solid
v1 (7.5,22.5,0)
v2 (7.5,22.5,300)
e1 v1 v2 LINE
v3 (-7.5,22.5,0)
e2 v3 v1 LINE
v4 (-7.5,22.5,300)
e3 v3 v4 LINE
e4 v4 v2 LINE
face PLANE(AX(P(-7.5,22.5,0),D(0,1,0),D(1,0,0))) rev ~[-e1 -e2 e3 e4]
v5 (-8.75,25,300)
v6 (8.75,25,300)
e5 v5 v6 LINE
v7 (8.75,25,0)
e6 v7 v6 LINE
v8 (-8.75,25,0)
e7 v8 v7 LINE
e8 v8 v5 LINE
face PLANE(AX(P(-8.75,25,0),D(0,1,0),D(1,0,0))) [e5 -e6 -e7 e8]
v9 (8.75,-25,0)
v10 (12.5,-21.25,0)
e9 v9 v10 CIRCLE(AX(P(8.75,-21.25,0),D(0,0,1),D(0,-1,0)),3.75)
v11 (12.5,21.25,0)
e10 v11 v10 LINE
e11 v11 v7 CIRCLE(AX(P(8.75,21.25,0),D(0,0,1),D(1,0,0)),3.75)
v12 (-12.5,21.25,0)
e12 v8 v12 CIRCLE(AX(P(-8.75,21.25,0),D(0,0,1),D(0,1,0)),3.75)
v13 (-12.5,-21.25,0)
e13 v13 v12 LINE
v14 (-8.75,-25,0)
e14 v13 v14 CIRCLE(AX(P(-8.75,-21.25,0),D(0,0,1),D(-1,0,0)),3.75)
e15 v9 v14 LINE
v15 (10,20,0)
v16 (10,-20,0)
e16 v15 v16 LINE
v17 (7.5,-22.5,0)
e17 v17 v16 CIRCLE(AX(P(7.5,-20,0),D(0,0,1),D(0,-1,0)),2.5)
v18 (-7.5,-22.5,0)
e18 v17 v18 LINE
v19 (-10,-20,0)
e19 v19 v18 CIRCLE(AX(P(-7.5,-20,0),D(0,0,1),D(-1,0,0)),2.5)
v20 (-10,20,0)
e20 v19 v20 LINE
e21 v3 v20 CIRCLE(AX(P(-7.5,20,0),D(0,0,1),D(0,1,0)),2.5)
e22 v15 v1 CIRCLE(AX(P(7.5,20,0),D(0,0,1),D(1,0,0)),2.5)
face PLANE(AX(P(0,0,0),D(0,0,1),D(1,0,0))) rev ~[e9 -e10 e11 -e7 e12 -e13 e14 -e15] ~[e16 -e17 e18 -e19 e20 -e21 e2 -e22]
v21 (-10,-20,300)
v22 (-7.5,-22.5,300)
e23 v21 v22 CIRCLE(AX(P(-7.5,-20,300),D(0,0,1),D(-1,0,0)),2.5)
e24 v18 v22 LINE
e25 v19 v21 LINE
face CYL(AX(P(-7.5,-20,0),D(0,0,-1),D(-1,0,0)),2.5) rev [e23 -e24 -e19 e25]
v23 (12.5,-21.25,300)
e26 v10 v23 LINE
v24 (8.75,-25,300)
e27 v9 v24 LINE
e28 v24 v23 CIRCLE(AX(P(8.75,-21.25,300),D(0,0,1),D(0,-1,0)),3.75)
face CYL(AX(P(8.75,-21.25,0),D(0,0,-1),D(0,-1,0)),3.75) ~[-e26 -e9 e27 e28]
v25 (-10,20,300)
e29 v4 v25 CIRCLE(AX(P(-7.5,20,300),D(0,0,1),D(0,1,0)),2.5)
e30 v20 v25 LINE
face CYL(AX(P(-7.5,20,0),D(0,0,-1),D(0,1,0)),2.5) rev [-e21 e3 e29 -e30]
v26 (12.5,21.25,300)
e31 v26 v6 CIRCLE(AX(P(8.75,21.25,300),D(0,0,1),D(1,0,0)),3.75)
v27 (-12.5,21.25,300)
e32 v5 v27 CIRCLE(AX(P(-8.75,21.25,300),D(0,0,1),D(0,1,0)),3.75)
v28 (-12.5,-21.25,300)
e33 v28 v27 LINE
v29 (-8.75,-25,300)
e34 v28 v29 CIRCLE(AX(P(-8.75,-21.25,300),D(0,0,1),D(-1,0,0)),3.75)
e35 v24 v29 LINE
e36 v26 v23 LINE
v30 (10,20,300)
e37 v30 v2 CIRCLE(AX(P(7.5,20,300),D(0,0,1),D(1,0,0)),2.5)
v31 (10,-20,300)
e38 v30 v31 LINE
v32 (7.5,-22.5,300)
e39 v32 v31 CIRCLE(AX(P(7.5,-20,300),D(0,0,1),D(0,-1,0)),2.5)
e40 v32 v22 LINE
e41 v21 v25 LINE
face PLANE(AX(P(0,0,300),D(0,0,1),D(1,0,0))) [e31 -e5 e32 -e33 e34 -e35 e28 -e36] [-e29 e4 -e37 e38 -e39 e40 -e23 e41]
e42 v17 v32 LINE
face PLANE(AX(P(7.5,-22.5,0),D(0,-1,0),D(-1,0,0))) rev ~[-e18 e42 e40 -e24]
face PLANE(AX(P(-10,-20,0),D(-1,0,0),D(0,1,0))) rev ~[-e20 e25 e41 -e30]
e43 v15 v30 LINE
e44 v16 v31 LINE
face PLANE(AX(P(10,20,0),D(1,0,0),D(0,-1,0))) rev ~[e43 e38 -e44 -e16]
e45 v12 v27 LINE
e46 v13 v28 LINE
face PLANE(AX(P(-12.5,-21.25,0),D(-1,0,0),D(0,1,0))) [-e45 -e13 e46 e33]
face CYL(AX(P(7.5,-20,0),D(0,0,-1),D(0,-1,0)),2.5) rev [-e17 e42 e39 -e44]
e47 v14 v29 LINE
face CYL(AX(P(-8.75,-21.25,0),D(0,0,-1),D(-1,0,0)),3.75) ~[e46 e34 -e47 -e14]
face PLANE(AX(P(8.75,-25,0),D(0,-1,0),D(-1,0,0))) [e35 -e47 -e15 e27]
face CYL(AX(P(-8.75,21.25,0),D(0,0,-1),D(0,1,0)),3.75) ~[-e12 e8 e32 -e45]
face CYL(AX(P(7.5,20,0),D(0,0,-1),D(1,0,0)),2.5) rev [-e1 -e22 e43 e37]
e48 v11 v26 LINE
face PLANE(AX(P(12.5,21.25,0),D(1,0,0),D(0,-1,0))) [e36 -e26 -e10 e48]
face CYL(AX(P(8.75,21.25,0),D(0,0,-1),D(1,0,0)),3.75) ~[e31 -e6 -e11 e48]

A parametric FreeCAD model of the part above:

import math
import FreeCAD as App
import Part
import Sketcher
Q = App.Units.Quantity

doc = App.newDocument("Part")
body = doc.addObject("PartDesign::Body", "Body")

sketch1 = body.newObject("Sketcher::SketchObject", "Sketch")
sketch1.AttachmentSupport = (doc.getObject("XY_Plane"), [""])
sketch1.MapMode = "FlatFace"
sketch1.addGeometry(Part.LineSegment(App.Vector(-12.5, 21.25, 0), App.Vector(-12.5, -21.25, 0)), False)
sketch1.addGeometry(Part.ArcOfCircle(Part.Circle(App.Vector(-8.75, -21.25, 0), App.Vector(0, 0, 1), 3.75), math.radians(180), math.radians(270)), False)
sketch1.addGeometry(Part.LineSegment(App.Vector(-8.75, -25, 0), App.Vector(8.75, -25, 0)), False)
sketch1.addGeometry(Part.ArcOfCircle(Part.Circle(App.Vector(8.75, -21.25, 0), App.Vector(0, 0, 1), 3.75), math.radians(-90), math.radians(0)), False)
sketch1.addGeometry(Part.LineSegment(App.Vector(12.5, -21.25, 0), App.Vector(12.5, 21.25, 0)), False)
sketch1.addGeometry(Part.ArcOfCircle(Part.Circle(App.Vector(8.75, 21.25, 0), App.Vector(0, 0, 1), 3.75), math.radians(0), math.radians(90)), False)
sketch1.addGeometry(Part.LineSegment(App.Vector(8.75, 25, 0), App.Vector(-8.75, 25, 0)), False)
sketch1.addGeometry(Part.ArcOfCircle(Part.Circle(App.Vector(-8.75, 21.25, 0), App.Vector(0, 0, 1), 3.75), math.radians(90), math.radians(180)), False)
sketch1.addGeometry(Part.ArcOfCircle(Part.Circle(App.Vector(-7.5, 20, 0), App.Vector(0, 0, 1), 2.5), math.radians(90), math.radians(180)), False)
sketch1.addGeometry(Part.LineSegment(App.Vector(-7.5, 22.5, 0), App.Vector(7.5, 22.5, 0)), False)
sketch1.addGeometry(Part.ArcOfCircle(Part.Circle(App.Vector(7.5, 20, 0), App.Vector(0, 0, 1), 2.5), math.radians(0), math.radians(90)), False)
sketch1.addGeometry(Part.LineSegment(App.Vector(10, 20, 0), App.Vector(10, -20, 0)), False)
sketch1.addGeometry(Part.ArcOfCircle(Part.Circle(App.Vector(7.5, -20, 0), App.Vector(0, 0, 1), 2.5), math.radians(-90), math.radians(0)), False)
sketch1.addGeometry(Part.LineSegment(App.Vector(7.5, -22.5, 0), App.Vector(-7.5, -22.5, 0)), False)
sketch1.addGeometry(Part.ArcOfCircle(Part.Circle(App.Vector(-7.5, -20, 0), App.Vector(0, 0, 1), 2.5), math.radians(180), math.radians(270)), False)
sketch1.addGeometry(Part.LineSegment(App.Vector(-10, -20, 0), App.Vector(-10, 20, 0)), False)
sketch1.addConstraint(Sketcher.Constraint("Tangent", 0, 2, 1, 1))
sketch1.addConstraint(Sketcher.Constraint("Tangent", 1, 2, 2, 1))
sketch1.addConstraint(Sketcher.Constraint("Tangent", 2, 2, 3, 1))
sketch1.addConstraint(Sketcher.Constraint("Tangent", 3, 2, 4, 1))
sketch1.addConstraint(Sketcher.Constraint("Tangent", 4, 2, 5, 1))
sketch1.addConstraint(Sketcher.Constraint("Tangent", 5, 2, 6, 1))
sketch1.addConstraint(Sketcher.Constraint("Tangent", 6, 2, 7, 1))
sketch1.addConstraint(Sketcher.Constraint("Tangent", 7, 2, 0, 1))
sketch1.addConstraint(Sketcher.Constraint("Tangent", 8, 1, 9, 1))
sketch1.addConstraint(Sketcher.Constraint("Tangent", 9, 2, 10, 2))
sketch1.addConstraint(Sketcher.Constraint("Tangent", 10, 1, 11, 1))
sketch1.addConstraint(Sketcher.Constraint("Tangent", 11, 2, 12, 2))
sketch1.addConstraint(Sketcher.Constraint("Tangent", 12, 1, 13, 1))
sketch1.addConstraint(Sketcher.Constraint("Tangent", 13, 2, 14, 2))
sketch1.addConstraint(Sketcher.Constraint("Tangent", 14, 1, 15, 1))
sketch1.addConstraint(Sketcher.Constraint("Tangent", 15, 2, 8, 2))
sketch1.addConstraint(Sketcher.Constraint("Vertical", 0))
sketch1.addConstraint(Sketcher.Constraint("Horizontal", 2))
sketch1.addConstraint(Sketcher.Constraint("Vertical", 4))
sketch1.addConstraint(Sketcher.Constraint("Horizontal", 6))
sketch1.addConstraint(Sketcher.Constraint("Horizontal", 9))
sketch1.addConstraint(Sketcher.Constraint("Vertical", 11))
sketch1.addConstraint(Sketcher.Constraint("Horizontal", 13))
sketch1.addConstraint(Sketcher.Constraint("Vertical", 15))
sketch1.addConstraint(Sketcher.Constraint("Equal", 1, 3))
sketch1.addConstraint(Sketcher.Constraint("Equal", 3, 5))
sketch1.addConstraint(Sketcher.Constraint("Equal", 5, 7))
sketch1.addConstraint(Sketcher.Constraint("Equal", 8, 10))
sketch1.addConstraint(Sketcher.Constraint("Equal", 10, 12))
sketch1.addConstraint(Sketcher.Constraint("Equal", 12, 14))
sketch1.addConstraint(Sketcher.Constraint("Symmetric", 1, 3, 5, 3, -1, 1))
sketch1.addConstraint(Sketcher.Constraint("Symmetric", 8, 3, 12, 3, -1, 1))
sketch1.addConstraint(Sketcher.Constraint("Radius", 8, Q("2.5 mm")))
sketch1.addConstraint(Sketcher.Constraint("Radius", 1, Q("3.75 mm")))
sketch1.addConstraint(Sketcher.Constraint("DistanceY", 1, 2, -1, 1, Q("25 mm")))
sketch1.addConstraint(Sketcher.Constraint("DistanceX", 0, 2, -1, 1, Q("12.5 mm")))
sketch1.addConstraint(Sketcher.Constraint("DistanceY", 8, 1, 6, 2, Q("2.5 mm")))
sketch1.addConstraint(Sketcher.Constraint("DistanceX", 10, 1, 4, 2, Q("2.5 mm")))
pad1 = body.newObject("PartDesign::Pad", "Pad")
pad1.Profile = sketch1
pad1.Length = 300

doc.recompute()
